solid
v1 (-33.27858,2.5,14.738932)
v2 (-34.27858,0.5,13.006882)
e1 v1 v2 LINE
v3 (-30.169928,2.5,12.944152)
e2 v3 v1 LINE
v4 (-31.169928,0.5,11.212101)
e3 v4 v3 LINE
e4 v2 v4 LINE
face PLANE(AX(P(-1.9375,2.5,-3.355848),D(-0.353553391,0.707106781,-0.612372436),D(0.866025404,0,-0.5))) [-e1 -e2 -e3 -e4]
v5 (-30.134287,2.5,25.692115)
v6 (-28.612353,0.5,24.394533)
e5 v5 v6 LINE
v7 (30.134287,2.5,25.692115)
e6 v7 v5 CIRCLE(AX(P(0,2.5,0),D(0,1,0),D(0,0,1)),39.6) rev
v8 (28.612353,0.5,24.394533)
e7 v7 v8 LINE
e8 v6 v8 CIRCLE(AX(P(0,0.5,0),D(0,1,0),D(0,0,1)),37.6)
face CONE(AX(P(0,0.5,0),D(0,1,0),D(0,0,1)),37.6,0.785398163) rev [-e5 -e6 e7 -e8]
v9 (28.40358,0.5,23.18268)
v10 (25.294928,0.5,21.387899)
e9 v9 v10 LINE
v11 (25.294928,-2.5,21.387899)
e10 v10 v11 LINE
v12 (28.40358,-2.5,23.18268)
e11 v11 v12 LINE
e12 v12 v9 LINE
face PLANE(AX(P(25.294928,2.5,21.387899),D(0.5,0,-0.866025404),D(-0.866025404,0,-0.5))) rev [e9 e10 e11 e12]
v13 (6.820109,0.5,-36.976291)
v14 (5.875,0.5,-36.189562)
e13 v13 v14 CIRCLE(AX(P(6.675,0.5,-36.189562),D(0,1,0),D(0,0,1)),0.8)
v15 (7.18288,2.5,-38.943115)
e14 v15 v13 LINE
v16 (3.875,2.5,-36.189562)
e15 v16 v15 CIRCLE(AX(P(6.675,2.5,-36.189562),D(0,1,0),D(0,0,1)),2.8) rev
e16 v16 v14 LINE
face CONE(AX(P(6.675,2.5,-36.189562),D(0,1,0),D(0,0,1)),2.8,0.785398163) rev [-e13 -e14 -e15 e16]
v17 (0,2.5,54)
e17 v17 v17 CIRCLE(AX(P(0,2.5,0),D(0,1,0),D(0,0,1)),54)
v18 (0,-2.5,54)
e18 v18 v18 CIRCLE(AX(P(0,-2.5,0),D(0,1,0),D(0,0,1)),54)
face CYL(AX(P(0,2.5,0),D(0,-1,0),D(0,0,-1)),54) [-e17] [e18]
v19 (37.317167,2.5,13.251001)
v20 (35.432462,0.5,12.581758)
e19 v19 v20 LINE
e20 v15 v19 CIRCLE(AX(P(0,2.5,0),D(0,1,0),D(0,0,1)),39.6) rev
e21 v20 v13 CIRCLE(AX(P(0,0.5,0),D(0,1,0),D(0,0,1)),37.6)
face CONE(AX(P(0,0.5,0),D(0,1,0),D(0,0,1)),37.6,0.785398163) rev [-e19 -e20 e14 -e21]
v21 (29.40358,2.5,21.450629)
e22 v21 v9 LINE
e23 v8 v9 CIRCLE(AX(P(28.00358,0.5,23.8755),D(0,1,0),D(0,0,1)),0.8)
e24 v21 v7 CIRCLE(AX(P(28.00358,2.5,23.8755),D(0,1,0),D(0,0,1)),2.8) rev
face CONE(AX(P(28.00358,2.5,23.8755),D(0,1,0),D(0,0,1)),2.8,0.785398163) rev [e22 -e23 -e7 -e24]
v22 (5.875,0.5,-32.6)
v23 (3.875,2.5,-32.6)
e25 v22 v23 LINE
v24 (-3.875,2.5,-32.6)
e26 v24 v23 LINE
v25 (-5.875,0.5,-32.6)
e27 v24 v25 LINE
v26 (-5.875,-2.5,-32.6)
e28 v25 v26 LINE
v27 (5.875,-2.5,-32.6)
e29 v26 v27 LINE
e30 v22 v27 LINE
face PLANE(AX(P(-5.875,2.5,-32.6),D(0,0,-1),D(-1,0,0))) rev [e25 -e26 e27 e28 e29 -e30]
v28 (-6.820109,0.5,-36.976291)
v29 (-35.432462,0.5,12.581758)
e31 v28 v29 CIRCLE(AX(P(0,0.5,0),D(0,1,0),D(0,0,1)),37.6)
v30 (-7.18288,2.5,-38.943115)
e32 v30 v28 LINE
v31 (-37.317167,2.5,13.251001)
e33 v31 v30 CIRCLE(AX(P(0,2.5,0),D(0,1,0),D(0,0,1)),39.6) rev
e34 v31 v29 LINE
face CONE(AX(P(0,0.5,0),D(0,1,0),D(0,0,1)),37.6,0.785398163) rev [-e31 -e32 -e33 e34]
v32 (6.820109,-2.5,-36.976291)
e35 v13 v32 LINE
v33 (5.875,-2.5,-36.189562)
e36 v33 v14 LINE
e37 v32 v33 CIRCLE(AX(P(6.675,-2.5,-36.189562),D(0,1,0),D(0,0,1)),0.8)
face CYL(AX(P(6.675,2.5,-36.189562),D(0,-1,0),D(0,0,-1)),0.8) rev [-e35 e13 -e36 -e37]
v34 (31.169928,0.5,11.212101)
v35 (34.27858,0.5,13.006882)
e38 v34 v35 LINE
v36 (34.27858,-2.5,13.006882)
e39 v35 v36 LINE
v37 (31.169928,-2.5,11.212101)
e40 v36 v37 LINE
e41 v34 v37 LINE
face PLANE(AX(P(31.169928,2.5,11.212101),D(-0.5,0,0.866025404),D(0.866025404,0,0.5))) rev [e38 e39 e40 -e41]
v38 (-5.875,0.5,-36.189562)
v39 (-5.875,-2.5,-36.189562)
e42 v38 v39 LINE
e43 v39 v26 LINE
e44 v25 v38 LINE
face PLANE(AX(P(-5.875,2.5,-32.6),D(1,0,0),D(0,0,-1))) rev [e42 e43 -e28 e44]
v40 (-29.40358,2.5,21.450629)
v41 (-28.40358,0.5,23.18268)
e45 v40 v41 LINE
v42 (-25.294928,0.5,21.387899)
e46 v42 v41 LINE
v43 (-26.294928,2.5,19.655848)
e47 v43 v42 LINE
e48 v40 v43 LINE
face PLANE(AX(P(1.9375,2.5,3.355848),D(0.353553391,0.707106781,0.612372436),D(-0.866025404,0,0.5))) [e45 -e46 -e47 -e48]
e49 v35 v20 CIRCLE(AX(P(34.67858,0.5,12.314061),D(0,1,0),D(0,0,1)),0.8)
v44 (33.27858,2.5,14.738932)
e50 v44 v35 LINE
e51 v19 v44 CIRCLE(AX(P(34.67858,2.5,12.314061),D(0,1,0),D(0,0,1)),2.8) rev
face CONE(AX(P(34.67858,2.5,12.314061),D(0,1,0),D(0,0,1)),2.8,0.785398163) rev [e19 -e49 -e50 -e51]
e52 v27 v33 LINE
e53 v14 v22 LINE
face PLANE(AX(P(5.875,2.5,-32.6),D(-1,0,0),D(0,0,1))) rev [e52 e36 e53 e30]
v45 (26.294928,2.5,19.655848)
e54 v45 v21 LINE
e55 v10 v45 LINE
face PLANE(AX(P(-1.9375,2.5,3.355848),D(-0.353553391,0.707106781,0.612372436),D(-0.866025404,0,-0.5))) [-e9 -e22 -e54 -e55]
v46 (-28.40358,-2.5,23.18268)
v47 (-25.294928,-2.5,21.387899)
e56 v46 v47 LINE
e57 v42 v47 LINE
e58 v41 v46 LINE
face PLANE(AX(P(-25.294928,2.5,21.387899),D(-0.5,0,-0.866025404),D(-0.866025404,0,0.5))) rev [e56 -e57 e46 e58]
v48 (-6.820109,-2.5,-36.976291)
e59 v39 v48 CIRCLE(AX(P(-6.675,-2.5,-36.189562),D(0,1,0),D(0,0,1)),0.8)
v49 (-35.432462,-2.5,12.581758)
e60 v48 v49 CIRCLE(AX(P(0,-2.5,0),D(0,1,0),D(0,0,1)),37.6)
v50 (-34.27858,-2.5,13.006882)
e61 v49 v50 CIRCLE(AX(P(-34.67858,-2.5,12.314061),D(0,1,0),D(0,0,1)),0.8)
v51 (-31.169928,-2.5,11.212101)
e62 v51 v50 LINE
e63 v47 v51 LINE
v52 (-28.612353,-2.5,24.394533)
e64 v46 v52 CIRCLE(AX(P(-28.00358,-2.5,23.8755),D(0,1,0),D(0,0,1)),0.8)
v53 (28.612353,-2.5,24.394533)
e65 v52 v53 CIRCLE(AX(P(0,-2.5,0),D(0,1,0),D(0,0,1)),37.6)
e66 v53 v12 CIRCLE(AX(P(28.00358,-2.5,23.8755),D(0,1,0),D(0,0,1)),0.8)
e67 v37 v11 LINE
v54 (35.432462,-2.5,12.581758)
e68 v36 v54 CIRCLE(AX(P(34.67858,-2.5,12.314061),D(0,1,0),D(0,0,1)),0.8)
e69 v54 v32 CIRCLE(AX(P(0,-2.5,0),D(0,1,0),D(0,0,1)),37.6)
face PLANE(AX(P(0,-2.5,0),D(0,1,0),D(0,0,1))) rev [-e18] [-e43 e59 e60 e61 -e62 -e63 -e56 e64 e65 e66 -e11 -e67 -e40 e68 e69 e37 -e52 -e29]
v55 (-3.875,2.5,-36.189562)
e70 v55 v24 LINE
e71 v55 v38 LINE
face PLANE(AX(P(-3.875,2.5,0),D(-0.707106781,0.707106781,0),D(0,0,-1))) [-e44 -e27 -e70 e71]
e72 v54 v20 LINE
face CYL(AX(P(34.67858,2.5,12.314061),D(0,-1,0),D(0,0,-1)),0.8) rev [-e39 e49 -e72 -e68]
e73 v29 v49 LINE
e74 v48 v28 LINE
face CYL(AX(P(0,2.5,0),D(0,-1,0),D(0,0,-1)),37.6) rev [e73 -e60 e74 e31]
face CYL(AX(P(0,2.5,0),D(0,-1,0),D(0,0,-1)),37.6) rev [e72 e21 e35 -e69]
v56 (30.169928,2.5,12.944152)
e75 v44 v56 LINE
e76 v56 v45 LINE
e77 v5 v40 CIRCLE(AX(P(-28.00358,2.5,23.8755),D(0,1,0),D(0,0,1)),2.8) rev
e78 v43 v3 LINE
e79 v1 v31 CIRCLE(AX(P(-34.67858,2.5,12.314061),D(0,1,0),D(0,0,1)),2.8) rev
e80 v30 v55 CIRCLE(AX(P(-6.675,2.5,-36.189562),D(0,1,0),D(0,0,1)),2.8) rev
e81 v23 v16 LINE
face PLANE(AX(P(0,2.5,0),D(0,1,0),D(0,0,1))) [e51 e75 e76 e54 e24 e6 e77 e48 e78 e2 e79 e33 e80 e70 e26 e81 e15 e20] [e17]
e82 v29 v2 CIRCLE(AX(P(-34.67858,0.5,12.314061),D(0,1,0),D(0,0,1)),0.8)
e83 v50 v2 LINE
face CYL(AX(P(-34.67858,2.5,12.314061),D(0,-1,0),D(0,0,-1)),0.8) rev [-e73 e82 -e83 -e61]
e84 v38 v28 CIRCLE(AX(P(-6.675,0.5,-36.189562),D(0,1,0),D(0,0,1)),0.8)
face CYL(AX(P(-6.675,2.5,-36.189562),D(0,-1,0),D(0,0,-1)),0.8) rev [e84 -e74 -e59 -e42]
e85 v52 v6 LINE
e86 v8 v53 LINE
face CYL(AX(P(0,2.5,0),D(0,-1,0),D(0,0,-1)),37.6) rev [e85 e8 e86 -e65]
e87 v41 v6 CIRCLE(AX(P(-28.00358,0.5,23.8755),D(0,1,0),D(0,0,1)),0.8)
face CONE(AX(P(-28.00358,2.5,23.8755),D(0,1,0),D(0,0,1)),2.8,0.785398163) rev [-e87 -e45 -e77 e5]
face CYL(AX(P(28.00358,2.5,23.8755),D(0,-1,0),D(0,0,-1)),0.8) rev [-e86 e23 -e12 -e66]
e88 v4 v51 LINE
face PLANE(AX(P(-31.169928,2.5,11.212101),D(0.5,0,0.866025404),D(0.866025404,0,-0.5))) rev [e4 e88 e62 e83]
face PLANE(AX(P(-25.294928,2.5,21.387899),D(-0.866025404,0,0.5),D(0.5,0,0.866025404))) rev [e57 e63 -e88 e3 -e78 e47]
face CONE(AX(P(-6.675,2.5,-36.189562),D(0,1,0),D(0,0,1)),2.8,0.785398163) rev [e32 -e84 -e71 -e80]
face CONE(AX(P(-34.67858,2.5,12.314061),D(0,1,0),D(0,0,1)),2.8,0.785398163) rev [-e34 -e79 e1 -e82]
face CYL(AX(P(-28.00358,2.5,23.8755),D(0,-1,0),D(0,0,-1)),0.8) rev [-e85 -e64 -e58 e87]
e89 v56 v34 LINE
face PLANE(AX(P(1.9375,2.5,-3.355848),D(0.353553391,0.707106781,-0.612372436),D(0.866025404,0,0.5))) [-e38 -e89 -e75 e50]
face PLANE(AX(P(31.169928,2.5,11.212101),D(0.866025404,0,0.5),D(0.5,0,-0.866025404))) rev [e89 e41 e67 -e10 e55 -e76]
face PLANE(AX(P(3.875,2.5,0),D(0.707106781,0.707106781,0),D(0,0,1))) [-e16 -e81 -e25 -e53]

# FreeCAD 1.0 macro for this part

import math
import FreeCAD as App
import Part
import Sketcher

V = App.Vector
Q = App.Units.Quantity


def edges_at(feature, points):
    """Names of the edges that pass closest to the given points."""
    edges = feature.Shape.Edges
    near = lambda p: min(range(len(edges)), key=lambda i: edges[i].distToShape(Part.Vertex(*p))[0])
    return sorted({f"Edge{near(p) + 1}" for p in points})

doc = App.newDocument("Part")
body = doc.addObject("PartDesign::Body", "Body")

# Sketch on XZ plane
sketch1 = body.newObject("Sketcher::SketchObject", "Sketch")
sketch1.AttachmentSupport = (doc.getObject("XZ_Plane"), [""])
sketch1.MapMode = "FlatFace"
sketch1.addGeometry([
    Part.Circle(V(0, 0, 0), V(0, 0, 1), 54),
    Part.Circle(V(0, 0, 0), V(0, 0, 1), 38),
], False)
sketch1.addConstraint([
    Sketcher.Constraint("Coincident", 0, 3, -1, 1),
    Sketcher.Constraint("Coincident", 1, 3, -1, 1),
    Sketcher.Constraint("Diameter", 0, Q("108 mm")),
    Sketcher.Constraint("Diameter", 1, Q("75.2 mm")),
])
pad1 = body.newObject("PartDesign::Pad", "Pad")
pad1.Profile = sketch1
pad1.Length = 5
pad1.Midplane = True

# Sketch on XZ plane
sketch2 = body.newObject("Sketcher::SketchObject", "Sketch001")
sketch2.AttachmentSupport = (doc.getObject("XZ_Plane"), [""])
sketch2.MapMode = "FlatFace"
sketch2.addGeometry([
    Part.LineSegment(V(-5.9, -32.6, 0), V(5.9, -32.6, 0)),
    Part.LineSegment(V(5.9, -32.6, 0), V(5.9, -37.1, 0)),
    Part.ArcOfCircle(Part.Circle(V(0, 0, 0), V(0, 0, 1), 37.6), math.radians(-98.99), math.radians(-81.01)),
    Part.LineSegment(V(-5.9, -37.1, 0), V(-5.9, -32.6, 0)),
], False)
sketch2.addConstraint([
    Sketcher.Constraint("Coincident", 0, 2, 1, 1),
    Sketcher.Constraint("Coincident", 1, 2, 2, 2),
    Sketcher.Constraint("Coincident", 2, 1, 3, 1),
    Sketcher.Constraint("Coincident", 3, 2, 0, 1),
    Sketcher.Constraint("Horizontal", 0),
    Sketcher.Constraint("Vertical", 1),
    Sketcher.Constraint("Vertical", 3),
    Sketcher.Constraint("Coincident", 2, 3, -1, 1),
    Sketcher.Constraint("Horizontal", 1, 2, 2, 1),
    Sketcher.Constraint("Radius", 2, Q("37.6 mm")),
    Sketcher.Constraint("DistanceX", 0, 1, 0, 2, Q("11.75 mm")),
    Sketcher.Constraint("DistanceY", 0, 2, -1, 1, Q("32.6 mm")),
])
pad2 = body.newObject("PartDesign::Pad", "Pad001")
pad2.Profile = sketch2
pad2.Length = 5
pad2.Midplane = True
doc.recompute()

fillet = body.newObject("PartDesign::Fillet", "Fillet")
fillet.Base = (pad2, edges_at(pad2, [(-5.875, 0, -37.138), (5.875, 0, -37.138)]))
fillet.Radius = 0.8
doc.recompute()

polarpattern = body.newObject("PartDesign::PolarPattern", "PolarPattern")
polarpattern.Originals = [pad2]
polarpattern.Axis = (doc.getObject("Y_Axis"), [""])
polarpattern.Angle = 360
polarpattern.Occurrences = 3
body.Tip = polarpattern
doc.recompute()

fillet2 = body.newObject("PartDesign::Fillet", "Fillet001")
fillet2.Base = (polarpattern, edges_at(polarpattern, [
    (-29.225, 0, 23.657),
    (-35.1, 0, 13.481),
    (35.1, 0, 13.481),
    (29.225, 0, 23.657),
]))
fillet2.Radius = 0.8
doc.recompute()

chamfer = body.newObject("PartDesign::Chamfer", "Chamfer")
chamfer.Base = (fillet2, edges_at(fillet2, [
    (5.875, 2.5, -34.395),
    (-32.563, 2.5, -18.8),
    (-5.875, 2.5, -34.395),
    (6.163, 2.5, -36.804),
    (-6.163, 2.5, -36.804),
    (26.849, 2.5, 22.285),
    (-32.724, 2.5, 12.109),
    (32.724, 2.5, 12.109),
    (32.563, 2.5, -18.8),
    (28.792, 2.5, 23.74),
    (34.955, 2.5, 13.065),
    (-26.849, 2.5, 22.285),
    (0, 2.5, 37.6),
    (-34.955, 2.5, 13.065),
    (-28.792, 2.5, 23.74),
]))
chamfer.Size = 2

doc.recompute()
